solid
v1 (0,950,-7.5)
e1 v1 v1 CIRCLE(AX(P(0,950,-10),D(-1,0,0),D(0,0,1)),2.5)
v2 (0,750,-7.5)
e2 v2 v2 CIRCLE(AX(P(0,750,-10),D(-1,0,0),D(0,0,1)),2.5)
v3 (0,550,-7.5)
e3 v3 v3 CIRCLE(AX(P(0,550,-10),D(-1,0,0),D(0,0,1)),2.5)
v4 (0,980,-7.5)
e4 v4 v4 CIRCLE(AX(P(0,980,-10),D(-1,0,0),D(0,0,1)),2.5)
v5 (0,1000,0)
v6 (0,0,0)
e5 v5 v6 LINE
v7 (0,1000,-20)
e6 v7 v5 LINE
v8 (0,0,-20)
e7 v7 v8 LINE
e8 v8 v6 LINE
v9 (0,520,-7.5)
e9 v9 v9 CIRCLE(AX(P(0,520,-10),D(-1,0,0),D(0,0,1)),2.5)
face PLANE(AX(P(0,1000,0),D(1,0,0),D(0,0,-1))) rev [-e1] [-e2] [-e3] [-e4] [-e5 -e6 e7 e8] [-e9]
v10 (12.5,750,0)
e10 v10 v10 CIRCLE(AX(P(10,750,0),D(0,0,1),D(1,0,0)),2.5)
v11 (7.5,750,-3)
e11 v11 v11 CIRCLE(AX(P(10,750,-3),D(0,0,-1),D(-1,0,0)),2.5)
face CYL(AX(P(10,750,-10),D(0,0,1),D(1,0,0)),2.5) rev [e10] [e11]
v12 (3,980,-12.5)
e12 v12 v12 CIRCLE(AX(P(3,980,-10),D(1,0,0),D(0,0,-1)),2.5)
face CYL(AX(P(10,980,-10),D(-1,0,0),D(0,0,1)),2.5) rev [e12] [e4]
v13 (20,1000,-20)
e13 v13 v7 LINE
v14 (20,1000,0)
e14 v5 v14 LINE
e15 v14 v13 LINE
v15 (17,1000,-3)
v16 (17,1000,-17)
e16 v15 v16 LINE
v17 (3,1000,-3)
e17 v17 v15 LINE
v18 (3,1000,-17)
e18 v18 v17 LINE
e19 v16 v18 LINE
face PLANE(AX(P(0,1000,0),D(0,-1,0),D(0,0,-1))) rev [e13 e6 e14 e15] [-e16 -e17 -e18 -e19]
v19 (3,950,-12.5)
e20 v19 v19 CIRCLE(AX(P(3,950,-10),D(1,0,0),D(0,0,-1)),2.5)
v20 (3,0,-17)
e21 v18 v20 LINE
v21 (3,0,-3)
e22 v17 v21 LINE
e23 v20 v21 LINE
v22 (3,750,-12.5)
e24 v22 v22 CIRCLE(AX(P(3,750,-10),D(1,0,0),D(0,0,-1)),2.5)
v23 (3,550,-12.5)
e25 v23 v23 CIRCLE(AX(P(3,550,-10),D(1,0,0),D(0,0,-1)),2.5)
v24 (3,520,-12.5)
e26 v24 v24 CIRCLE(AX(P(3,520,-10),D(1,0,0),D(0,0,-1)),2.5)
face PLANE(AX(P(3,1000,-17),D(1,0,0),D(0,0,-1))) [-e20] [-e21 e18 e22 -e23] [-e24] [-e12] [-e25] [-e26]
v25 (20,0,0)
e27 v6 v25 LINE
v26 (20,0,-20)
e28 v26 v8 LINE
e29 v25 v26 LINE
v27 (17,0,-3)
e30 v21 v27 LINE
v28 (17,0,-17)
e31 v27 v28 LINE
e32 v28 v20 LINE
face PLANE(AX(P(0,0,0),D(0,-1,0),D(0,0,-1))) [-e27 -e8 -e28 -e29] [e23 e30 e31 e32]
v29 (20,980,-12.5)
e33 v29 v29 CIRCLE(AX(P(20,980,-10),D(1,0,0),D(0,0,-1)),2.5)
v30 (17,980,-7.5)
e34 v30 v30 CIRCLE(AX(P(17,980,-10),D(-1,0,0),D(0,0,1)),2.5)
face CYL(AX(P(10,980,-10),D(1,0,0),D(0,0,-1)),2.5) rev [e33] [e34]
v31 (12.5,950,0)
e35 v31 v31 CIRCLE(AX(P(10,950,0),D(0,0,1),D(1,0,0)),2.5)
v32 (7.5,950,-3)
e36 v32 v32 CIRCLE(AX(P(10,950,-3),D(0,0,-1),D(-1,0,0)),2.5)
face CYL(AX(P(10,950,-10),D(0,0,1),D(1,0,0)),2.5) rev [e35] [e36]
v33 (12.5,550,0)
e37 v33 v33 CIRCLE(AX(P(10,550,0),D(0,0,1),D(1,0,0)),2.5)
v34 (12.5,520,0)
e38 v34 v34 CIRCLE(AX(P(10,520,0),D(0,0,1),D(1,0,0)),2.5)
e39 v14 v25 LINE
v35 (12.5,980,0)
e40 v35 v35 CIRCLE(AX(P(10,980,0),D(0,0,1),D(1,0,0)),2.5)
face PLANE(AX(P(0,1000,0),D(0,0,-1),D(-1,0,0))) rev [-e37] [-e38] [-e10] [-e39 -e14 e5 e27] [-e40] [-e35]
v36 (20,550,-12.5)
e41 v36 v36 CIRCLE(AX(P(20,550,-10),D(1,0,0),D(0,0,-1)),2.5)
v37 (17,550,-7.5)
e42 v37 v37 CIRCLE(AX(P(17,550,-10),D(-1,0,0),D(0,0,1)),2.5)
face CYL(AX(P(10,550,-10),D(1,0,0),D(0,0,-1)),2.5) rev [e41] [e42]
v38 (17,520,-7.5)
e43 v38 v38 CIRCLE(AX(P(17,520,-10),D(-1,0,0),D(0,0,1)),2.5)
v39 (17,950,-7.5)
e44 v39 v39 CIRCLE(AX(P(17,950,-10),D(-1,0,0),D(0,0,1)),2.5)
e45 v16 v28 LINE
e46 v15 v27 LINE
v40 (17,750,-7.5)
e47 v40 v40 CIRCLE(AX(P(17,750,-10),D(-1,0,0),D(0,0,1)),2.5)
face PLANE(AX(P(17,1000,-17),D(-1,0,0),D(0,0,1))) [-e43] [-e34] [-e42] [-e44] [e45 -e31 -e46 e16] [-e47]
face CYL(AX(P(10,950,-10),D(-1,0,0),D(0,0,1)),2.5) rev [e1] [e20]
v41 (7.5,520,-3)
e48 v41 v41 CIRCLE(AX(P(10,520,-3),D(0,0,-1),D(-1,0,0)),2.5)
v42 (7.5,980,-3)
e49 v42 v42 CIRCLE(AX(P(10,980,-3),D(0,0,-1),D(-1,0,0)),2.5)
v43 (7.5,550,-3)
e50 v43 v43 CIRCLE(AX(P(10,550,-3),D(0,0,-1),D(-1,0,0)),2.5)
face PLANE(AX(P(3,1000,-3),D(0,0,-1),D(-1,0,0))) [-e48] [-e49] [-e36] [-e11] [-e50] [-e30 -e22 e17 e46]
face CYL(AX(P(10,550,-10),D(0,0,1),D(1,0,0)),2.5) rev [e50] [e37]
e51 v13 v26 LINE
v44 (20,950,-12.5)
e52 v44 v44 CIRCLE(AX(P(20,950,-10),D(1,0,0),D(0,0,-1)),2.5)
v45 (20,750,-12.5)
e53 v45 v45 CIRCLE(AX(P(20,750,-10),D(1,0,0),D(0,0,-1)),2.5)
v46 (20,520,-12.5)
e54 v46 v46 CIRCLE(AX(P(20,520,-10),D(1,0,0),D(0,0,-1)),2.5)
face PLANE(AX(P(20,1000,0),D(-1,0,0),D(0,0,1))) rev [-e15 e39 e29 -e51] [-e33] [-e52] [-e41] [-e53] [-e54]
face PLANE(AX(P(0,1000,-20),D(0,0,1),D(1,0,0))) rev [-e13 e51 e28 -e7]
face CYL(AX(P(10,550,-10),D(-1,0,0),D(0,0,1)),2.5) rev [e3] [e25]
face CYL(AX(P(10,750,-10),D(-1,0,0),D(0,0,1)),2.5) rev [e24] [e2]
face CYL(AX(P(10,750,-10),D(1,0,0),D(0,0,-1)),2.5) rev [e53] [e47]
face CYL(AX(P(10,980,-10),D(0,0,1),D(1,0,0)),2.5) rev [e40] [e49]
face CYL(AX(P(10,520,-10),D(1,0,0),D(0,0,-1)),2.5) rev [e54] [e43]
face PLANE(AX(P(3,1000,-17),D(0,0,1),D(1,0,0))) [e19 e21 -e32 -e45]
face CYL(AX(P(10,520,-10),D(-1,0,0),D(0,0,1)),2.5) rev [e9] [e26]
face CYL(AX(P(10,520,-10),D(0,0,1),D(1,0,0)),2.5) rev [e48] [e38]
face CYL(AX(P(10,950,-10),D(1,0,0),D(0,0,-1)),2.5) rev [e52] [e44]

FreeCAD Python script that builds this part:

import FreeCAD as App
import Part
import Sketcher


def add_polygon(sketch, points):
    """Adds a closed chain of lines whose ends are joined by coincident constraints."""
    first, n = sketch.GeometryCount, len(points)
    for a, b in zip(points, points[1:] + points[:1]):
        sketch.addGeometry(Part.LineSegment(App.Vector(*a, 0), App.Vector(*b, 0)), False)
    for i in range(n):
        sketch.addConstraint(Sketcher.Constraint("Coincident", first + i, 2, first + (i + 1) % n, 1))

doc = App.newDocument("Part")
body = doc.addObject("PartDesign::Body", "Body")

# Sketch on XZ plane
sketch1 = body.newObject("Sketcher::SketchObject", "Sketch")
sketch1.AttachmentSupport = (doc.getObject("XZ_Plane"), [""])
sketch1.MapMode = "FlatFace"
add_polygon(sketch1, [(0, -20), (0, 0), (20, 0), (20, -20)])  # lines 0-3
add_polygon(sketch1, [(17, -3), (3, -3), (3, -17), (17, -17)])  # lines 4-7
sketch1.addConstraint(Sketcher.Constraint("Vertical", 0))
sketch1.addConstraint(Sketcher.Constraint("Horizontal", 1))
sketch1.addConstraint(Sketcher.Constraint("Vertical", 2))
sketch1.addConstraint(Sketcher.Constraint("Horizontal", 3))
sketch1.addConstraint(Sketcher.Constraint("Horizontal", 4))
sketch1.addConstraint(Sketcher.Constraint("Vertical", 5))
sketch1.addConstraint(Sketcher.Constraint("Horizontal", 6))
sketch1.addConstraint(Sketcher.Constraint("Vertical", 7))
sketch1.addConstraint(Sketcher.Constraint("Coincident", 0, 2, -1, 1))
sketch1.addConstraint(Sketcher.Constraint("Equal", 3, 0))
sketch1.addConstraint(Sketcher.Constraint("Equal", 6, 5))
sketch1.addConstraint(Sketcher.Constraint("DistanceX", 1, 1, 1, 2, 20.0))
sketch1.addConstraint(Sketcher.Constraint("DistanceX", 4, 2, 4, 1, 14.0))
sketch1.addConstraint(Sketcher.Constraint("DistanceX", -1, 1, 4, 2, 3.0))
sketch1.addConstraint(Sketcher.Constraint("DistanceY", 4, 2, -1, 1, 3.0))
pad1 = body.newObject("PartDesign::Pad", "Pad")
pad1.Profile = sketch1
pad1.Length = 1000
pad1.Reversed = True

# Sketch on YZ plane
sketch2 = body.newObject("Sketcher::SketchObject", "Sketch001")
sketch2.AttachmentSupport = (doc.getObject("YZ_Plane"), [""])
sketch2.MapMode = "FlatFace"
sketch2.AttachmentOffset = App.Placement(App.Vector(0, 0, 20), App.Rotation())
sketch2.addGeometry(Part.Circle(App.Vector(980, -10, 0), App.Vector(0, 0, 1), 2.5), False)
sketch2.addConstraint(Sketcher.Constraint("Diameter", 0, 5.0))
sketch2.addConstraint(Sketcher.Constraint("DistanceX", -1, 1, 0, 3, 980.0))
sketch2.addConstraint(Sketcher.Constraint("DistanceY", 0, 3, -1, 1, 10.0))
pocket1 = body.newObject("PartDesign::Pocket", "Pocket")
pocket1.Profile = sketch2
pocket1.Length = 10
doc.recompute()

linearpattern = body.newObject("PartDesign::LinearPattern", "LinearPattern")
linearpattern.Originals = [pocket1]
linearpattern.Direction = (doc.getObject("Y_Axis"), [""])
linearpattern.Mode = "offset"
linearpattern.Offset = 230
linearpattern.Occurrences = 3
linearpattern.Reversed = True
body.Tip = linearpattern
doc.recompute()

datumline = body.newObject("PartDesign::Line", "DatumLine")
datumline.Placement = App.Placement(App.Vector(10, 0, -10), App.Rotation(App.Vector(0, 0, 1), App.Vector(0, -1, 0)))
polarpattern = body.newObject("PartDesign::PolarPattern", "PolarPattern")
polarpattern.Originals = [pocket1]
polarpattern.Axis = (datumline, [""])
polarpattern.Angle = 180
polarpattern.Occurrences = 3
body.Tip = polarpattern

# Sketch on XY plane
sketch3 = body.newObject("Sketcher::SketchObject", "Sketch002")
sketch3.AttachmentSupport = (doc.getObject("XY_Plane"), [""])
sketch3.MapMode = "FlatFace"
sketch3.addGeometry(Part.Circle(App.Vector(10, 750, 0), App.Vector(0, 0, 1), 2.5), False)
sketch3.addConstraint(Sketcher.Constraint("Diameter", 0, 5.0))
sketch3.addConstraint(Sketcher.Constraint("DistanceX", -1, 1, 0, 3, 10.0))
sketch3.addConstraint(Sketcher.Constraint("DistanceY", -1, 1, 0, 3, 750.0))
pocket2 = body.newObject("PartDesign::Pocket", "Pocket001")
pocket2.Profile = sketch3
pocket2.Length = 10

# Sketch on YZ plane
sketch4 = body.newObject("Sketcher::SketchObject", "Sketch003")
sketch4.AttachmentSupport = (doc.getObject("YZ_Plane"), [""])
sketch4.MapMode = "FlatFace"
sketch4.addGeometry(Part.Circle(App.Vector(750, -10, 0), App.Vector(0, 0, 1), 2.5), False)
sketch4.addConstraint(Sketcher.Constraint("Diameter", 0, 5.0))
sketch4.addConstraint(Sketcher.Constraint("DistanceX", -1, 1, 0, 3, 750.0))
sketch4.addConstraint(Sketcher.Constraint("DistanceY", 0, 3, -1, 1, 10.0))
pocket3 = body.newObject("PartDesign::Pocket", "Pocket002")
pocket3.Profile = sketch4
pocket3.Length = 10
pocket3.Reversed = True

# Sketch on XY plane
sketch5 = body.newObject("Sketcher::SketchObject", "Sketch004")
sketch5.AttachmentSupport = (doc.getObject("XY_Plane"), [""])
sketch5.MapMode = "FlatFace"
sketch5.addGeometry(Part.Circle(App.Vector(10, 520, 0), App.Vector(0, 0, 1), 2.5), False)
sketch5.addConstraint(Sketcher.Constraint("Diameter", 0, 5.0))
sketch5.addConstraint(Sketcher.Constraint("DistanceX", -1, 1, 0, 3, 10.0))
sketch5.addConstraint(Sketcher.Constraint("DistanceY", -1, 1, 0, 3, 520.0))
pocket4 = body.newObject("PartDesign::Pocket", "Pocket003")
pocket4.Profile = sketch5
pocket4.Length = 10

# Sketch on YZ plane
sketch6 = body.newObject("Sketcher::SketchObject", "Sketch005")
sketch6.AttachmentSupport = (doc.getObject("YZ_Plane"), [""])
sketch6.MapMode = "FlatFace"
sketch6.addGeometry(Part.Circle(App.Vector(520, -10, 0), App.Vector(0, 0, 1), 2.5), False)
sketch6.addConstraint(Sketcher.Constraint("Diameter", 0, 5.0))
sketch6.addConstraint(Sketcher.Constraint("DistanceX", -1, 1, 0, 3, 520.0))
sketch6.addConstraint(Sketcher.Constraint("DistanceY", 0, 3, -1, 1, 10.0))
pocket5 = body.newObject("PartDesign::Pocket", "Pocket004")
pocket5.Profile = sketch6
pocket5.Length = 10
pocket5.Reversed = True

# Sketch on YZ plane
sketch7 = body.newObject("Sketcher::SketchObject", "Sketch006")
sketch7.AttachmentSupport = (doc.getObject("YZ_Plane"), [""])
sketch7.MapMode = "FlatFace"
sketch7.AttachmentOffset = App.Placement(App.Vector(0, 0, 20), App.Rotation())
sketch7.addGeometry(Part.Circle(App.Vector(950, -10, 0), App.Vector(0, 0, 1), 2.5), False)
sketch7.addConstraint(Sketcher.Constraint("Diameter", 0, 5.0))
sketch7.addConstraint(Sketcher.Constraint("DistanceX", -1, 1, 0, 3, 950.0))
sketch7.addConstraint(Sketcher.Constraint("DistanceY", 0, 3, -1, 1, 10.0))
pocket6 = body.newObject("PartDesign::Pocket", "Pocket005")
pocket6.Profile = sketch7
pocket6.Length = 10
doc.recompute()

linearpattern2 = body.newObject("PartDesign::LinearPattern", "LinearPattern001")
linearpattern2.Originals = [pocket6]
linearpattern2.Direction = (doc.getObject("Y_Axis"), [""])
linearpattern2.Mode = "offset"
linearpattern2.Offset = 400
linearpattern2.Occurrences = 2
linearpattern2.Reversed = True
body.Tip = linearpattern2
doc.recompute()

datumline2 = body.newObject("PartDesign::Line", "DatumLine001")
datumline2.Placement = App.Placement(App.Vector(10, 0, -10), App.Rotation(App.Vector(0, 0, 1), App.Vector(0, -1, 0)))
polarpattern2 = body.newObject("PartDesign::PolarPattern", "PolarPattern001")
polarpattern2.Originals = [pocket6]
polarpattern2.Axis = (datumline2, [""])
polarpattern2.Angle = 180
polarpattern2.Occurrences = 3
body.Tip = polarpattern2

# Sketch on XY plane
sketch8 = body.newObject("Sketcher::SketchObject", "Sketch007")
sketch8.AttachmentSupport = (doc.getObject("XY_Plane"), [""])
sketch8.MapMode = "FlatFace"
sketch8.addGeometry(Part.Circle(App.Vector(10, 550, 0), App.Vector(0, 0, 1), 2.5), False)
sketch8.addConstraint(Sketcher.Constraint("Diameter", 0, 5.0))
sketch8.addConstraint(Sketcher.Constraint("DistanceX", -1, 1, 0, 3, 10.0))
sketch8.addConstraint(Sketcher.Constraint("DistanceY", -1, 1, 0, 3, 550.0))
pocket7 = body.newObject("PartDesign::Pocket", "Pocket006")
pocket7.Profile = sketch8
pocket7.Length = 10

# Sketch on YZ plane
sketch9 = body.newObject("Sketcher::SketchObject", "Sketch008")
sketch9.AttachmentSupport = (doc.getObject("YZ_Plane"), [""])
sketch9.MapMode = "FlatFace"
sketch9.addGeometry(Part.Circle(App.Vector(550, -10, 0), App.Vector(0, 0, 1), 2.5), False)
sketch9.addConstraint(Sketcher.Constraint("Diameter", 0, 5.0))
sketch9.addConstraint(Sketcher.Constraint("DistanceX", -1, 1, 0, 3, 550.0))
sketch9.addConstraint(Sketcher.Constraint("DistanceY", 0, 3, -1, 1, 10.0))
pocket8 = body.newObject("PartDesign::Pocket", "Pocket007")
pocket8.Profile = sketch9
pocket8.Length = 10
pocket8.Reversed = True

doc.recompute()
